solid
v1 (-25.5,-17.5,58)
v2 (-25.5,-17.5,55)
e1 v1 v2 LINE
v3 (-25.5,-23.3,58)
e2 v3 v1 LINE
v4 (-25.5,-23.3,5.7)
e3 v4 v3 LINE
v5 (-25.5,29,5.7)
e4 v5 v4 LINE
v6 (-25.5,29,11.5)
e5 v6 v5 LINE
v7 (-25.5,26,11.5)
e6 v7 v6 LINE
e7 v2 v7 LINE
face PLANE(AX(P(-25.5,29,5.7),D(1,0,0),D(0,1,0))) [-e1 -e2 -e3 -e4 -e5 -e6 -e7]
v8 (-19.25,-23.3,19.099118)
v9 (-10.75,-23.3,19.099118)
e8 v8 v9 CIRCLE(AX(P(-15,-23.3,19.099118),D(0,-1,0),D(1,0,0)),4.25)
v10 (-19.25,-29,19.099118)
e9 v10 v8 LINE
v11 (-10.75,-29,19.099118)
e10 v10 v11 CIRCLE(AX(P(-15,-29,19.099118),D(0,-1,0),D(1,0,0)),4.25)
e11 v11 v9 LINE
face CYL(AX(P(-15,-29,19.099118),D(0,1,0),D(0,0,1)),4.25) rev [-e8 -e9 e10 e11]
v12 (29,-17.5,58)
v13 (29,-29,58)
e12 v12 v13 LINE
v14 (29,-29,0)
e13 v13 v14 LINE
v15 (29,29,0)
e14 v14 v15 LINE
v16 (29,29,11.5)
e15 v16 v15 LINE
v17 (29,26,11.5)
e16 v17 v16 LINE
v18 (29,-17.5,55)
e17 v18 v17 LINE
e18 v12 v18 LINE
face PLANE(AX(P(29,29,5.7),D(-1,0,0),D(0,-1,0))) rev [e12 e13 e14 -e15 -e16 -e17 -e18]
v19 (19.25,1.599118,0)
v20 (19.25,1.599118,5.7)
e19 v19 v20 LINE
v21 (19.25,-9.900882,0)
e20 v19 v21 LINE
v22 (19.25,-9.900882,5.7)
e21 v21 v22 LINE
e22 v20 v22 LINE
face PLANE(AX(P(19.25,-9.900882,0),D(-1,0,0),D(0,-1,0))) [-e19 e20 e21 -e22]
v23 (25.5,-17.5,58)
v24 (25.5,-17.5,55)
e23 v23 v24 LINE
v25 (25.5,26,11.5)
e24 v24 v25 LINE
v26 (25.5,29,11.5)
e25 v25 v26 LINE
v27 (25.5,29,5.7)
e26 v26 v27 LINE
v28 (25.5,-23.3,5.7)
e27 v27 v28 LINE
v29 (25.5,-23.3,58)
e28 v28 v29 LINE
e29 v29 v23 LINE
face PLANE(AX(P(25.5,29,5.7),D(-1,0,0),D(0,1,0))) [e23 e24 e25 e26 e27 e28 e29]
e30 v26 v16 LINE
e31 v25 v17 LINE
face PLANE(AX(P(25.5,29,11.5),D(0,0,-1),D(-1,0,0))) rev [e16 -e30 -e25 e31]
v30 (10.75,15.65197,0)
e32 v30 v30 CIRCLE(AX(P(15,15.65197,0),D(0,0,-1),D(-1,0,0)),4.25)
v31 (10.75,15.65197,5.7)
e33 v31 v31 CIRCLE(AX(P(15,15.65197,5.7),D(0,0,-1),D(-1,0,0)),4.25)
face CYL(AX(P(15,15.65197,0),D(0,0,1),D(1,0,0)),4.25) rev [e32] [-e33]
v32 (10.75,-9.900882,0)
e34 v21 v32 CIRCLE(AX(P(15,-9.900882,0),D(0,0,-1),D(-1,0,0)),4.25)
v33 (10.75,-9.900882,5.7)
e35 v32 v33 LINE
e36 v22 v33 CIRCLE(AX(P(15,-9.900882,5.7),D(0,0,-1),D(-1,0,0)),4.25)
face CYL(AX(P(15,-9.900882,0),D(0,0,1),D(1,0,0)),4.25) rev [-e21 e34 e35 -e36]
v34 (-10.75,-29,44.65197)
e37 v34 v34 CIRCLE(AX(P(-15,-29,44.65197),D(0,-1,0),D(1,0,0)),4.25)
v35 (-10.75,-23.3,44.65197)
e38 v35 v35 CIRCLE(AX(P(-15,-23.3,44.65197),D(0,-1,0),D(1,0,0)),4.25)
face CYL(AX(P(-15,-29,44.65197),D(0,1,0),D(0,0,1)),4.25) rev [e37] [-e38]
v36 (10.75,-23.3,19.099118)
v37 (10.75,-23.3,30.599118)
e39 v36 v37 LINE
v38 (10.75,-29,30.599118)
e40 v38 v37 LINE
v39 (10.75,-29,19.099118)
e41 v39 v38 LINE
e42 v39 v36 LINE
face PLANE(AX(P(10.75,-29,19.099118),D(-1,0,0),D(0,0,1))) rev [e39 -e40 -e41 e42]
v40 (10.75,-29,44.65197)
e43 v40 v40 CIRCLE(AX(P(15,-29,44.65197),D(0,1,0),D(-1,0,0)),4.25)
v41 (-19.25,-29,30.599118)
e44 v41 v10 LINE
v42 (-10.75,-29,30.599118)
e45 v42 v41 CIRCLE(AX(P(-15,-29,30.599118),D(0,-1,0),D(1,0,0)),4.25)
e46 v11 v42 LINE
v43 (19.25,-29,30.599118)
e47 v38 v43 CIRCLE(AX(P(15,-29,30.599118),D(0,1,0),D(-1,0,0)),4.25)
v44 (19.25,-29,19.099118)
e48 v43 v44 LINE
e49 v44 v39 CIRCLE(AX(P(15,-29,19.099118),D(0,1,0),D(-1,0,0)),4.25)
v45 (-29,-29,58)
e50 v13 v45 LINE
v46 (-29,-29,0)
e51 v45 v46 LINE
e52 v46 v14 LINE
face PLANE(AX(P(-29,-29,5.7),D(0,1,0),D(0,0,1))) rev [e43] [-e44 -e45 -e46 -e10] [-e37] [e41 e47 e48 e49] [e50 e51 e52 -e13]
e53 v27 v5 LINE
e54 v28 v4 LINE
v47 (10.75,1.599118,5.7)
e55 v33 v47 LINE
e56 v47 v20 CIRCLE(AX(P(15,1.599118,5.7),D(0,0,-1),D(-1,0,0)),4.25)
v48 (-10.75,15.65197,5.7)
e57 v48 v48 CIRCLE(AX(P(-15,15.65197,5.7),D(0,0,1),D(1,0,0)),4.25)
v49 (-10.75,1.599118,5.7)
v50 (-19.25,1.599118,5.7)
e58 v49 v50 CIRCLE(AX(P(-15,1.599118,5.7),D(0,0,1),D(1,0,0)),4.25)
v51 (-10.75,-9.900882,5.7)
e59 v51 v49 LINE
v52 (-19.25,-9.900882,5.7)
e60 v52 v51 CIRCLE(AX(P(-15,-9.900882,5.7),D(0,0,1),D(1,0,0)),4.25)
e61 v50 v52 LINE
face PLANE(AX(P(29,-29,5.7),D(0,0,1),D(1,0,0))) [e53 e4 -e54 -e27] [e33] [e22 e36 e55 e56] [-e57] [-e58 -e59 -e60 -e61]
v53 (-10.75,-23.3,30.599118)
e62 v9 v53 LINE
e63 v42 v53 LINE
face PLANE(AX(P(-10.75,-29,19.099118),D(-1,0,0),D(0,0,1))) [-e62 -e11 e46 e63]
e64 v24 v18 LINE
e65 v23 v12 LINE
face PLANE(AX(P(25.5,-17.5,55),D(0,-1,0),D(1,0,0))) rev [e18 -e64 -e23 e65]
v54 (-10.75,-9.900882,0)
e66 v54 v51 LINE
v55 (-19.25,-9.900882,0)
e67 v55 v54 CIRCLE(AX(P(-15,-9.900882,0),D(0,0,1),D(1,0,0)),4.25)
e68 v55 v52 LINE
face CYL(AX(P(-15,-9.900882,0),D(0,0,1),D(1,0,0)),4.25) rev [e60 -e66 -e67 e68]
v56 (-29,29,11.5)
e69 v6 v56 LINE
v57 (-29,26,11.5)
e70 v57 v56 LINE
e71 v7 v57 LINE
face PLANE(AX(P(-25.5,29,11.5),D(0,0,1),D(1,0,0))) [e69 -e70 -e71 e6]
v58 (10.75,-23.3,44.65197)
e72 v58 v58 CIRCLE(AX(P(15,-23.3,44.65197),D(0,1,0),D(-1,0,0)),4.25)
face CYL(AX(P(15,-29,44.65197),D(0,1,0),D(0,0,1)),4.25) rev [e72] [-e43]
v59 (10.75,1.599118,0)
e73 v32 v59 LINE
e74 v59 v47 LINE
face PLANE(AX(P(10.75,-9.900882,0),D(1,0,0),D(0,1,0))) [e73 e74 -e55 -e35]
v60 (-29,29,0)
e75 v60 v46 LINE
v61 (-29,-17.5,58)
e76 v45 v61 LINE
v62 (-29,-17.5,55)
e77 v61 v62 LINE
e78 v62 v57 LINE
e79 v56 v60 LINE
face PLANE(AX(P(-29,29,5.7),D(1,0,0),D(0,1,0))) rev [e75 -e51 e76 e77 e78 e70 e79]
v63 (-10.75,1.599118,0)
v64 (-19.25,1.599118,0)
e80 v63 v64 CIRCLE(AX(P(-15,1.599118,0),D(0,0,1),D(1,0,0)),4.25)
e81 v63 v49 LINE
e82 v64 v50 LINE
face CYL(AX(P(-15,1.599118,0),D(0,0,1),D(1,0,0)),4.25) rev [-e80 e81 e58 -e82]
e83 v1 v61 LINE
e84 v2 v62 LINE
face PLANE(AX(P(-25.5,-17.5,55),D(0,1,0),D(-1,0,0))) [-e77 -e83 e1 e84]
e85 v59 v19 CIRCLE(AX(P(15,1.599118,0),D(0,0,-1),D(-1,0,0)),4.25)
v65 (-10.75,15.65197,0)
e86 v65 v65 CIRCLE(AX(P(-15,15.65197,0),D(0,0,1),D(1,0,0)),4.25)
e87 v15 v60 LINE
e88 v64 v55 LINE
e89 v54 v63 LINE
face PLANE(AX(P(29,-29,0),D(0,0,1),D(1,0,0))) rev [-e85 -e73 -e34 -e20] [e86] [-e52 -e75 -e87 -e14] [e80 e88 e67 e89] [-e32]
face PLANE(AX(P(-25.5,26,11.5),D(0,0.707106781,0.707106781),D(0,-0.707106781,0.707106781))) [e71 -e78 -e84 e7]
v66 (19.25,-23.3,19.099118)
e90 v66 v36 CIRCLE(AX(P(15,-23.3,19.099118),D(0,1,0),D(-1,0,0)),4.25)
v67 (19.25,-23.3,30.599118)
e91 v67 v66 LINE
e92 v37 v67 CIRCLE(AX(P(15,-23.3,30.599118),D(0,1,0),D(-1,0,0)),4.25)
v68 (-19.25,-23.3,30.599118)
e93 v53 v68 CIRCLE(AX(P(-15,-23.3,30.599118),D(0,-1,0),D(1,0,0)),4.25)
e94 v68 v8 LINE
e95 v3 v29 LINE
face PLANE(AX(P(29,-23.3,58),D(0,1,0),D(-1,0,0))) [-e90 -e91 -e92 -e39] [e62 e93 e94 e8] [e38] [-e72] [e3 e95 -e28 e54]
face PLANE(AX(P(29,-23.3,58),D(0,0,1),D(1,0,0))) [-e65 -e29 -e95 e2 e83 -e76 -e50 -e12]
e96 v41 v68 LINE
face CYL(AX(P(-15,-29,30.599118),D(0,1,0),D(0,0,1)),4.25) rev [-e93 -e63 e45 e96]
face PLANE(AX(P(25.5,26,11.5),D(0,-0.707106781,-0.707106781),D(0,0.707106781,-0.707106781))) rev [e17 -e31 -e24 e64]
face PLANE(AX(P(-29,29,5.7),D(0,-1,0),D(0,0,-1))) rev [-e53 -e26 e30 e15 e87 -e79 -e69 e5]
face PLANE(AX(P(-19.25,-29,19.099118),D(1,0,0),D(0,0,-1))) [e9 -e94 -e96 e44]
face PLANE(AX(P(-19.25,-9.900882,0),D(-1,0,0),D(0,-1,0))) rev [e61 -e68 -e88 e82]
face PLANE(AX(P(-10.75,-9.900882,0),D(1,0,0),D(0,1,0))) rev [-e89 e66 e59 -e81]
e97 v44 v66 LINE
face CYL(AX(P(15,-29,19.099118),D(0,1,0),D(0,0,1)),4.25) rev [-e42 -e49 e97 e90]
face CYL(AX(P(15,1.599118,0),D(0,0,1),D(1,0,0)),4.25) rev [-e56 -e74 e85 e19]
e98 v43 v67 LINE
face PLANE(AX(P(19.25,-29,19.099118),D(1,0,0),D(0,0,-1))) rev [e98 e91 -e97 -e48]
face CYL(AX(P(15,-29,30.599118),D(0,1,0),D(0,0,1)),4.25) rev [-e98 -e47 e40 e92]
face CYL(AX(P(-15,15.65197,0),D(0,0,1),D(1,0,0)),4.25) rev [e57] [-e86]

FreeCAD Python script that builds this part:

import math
import FreeCAD as App
import Part
import Sketcher
from FreeCAD import Vector

doc = App.newDocument("Part")
params = doc.addObject("Spreadsheet::Sheet", "Params")
for row, (alias, value) in enumerate([
    ("sketch1_width", "58 mm"),
    ("pad1_length", "5.7 mm"),
    ("sketch2_width", "58 mm"),
    ("sketch2_height", "5.7 mm"),
    ("pad2_length", "58 mm"),
    ("sketch3_width", "3 mm"),
    ("sketch3_width2", "52.3 mm"),
    ("sketch3_width3", "5.8 mm"),
    ("pad3_length", "3.5 mm"),
    ("sketch4_diameter", "8.5 mm"),
    ("sketch4_height", "11.5 mm"),
    ("sketch5_width", "3 mm"),
    ("sketch5_width2", "5.8 mm"),
    ("sketch5_width3", "52.3 mm"),
    ("pad4_length", "3.5 mm"),
    ("sketch6_diameter", "8.5 mm"),
    ("sketch6_height", "11.5 mm"),
    ("sketch7_width", "3 mm"),
    ("sketch7_width2", "5.8 mm"),
    ("sketch7_width3", "52.3 mm"),
    ("pad5_length", "3.5 mm"),
], start=1):
    params.set(f"A{row}", alias)
    params.set(f"B{row}", "=" + value)
    params.setAlias(f"B{row}", alias)

body = doc.addObject("PartDesign::Body", "Body")

sketch1 = doc.addObject("Sketcher::SketchObject", "Sketch")
body.addObject(sketch1)
sketch1.AttachmentSupport = (doc.XY_Plane, [""])
sketch1.MapMode = "FlatFace"
sketch1.addGeometry([
    Part.LineSegment(Vector(-29, 29, 0), Vector(-29, -29, 0)),
    Part.LineSegment(Vector(-29, -29, 0), Vector(29, -29, 0)),
    Part.LineSegment(Vector(29, -29, 0), Vector(29, 29, 0)),
    Part.LineSegment(Vector(29, 29, 0), Vector(-29, 29, 0)),
], False)
sketch1.addConstraint([
    Sketcher.Constraint("Coincident", 0, 2, 1, 1),
    Sketcher.Constraint("Coincident", 1, 2, 2, 1),
    Sketcher.Constraint("Coincident", 2, 2, 3, 1),
    Sketcher.Constraint("Coincident", 3, 2, 0, 1),
    Sketcher.Constraint("Vertical", 0),
    Sketcher.Constraint("Horizontal", 1),
    Sketcher.Constraint("Vertical", 2),
    Sketcher.Constraint("Horizontal", 3),
    Sketcher.Constraint("Symmetric", 0, 2, 2, 2, -1, 1),
    Sketcher.Constraint("Equal", 3, 0),
    Sketcher.Constraint("DistanceX", 1, 1, 1, 2, 58.0),
])
sketch1.setExpression("Constraints[10]", "Params.sketch1_width")
pad1 = doc.addObject("PartDesign::Pad", "Pad")
body.addObject(pad1)
pad1.Profile = sketch1
pad1.setExpression("Length", "Params.pad1_length")

sketch2 = doc.addObject("Sketcher::SketchObject", "Sketch001")
body.addObject(sketch2)
sketch2.AttachmentSupport = (doc.XY_Plane, [""])
sketch2.MapMode = "FlatFace"
sketch2.addGeometry([
    Part.LineSegment(Vector(29, -23.3, 0), Vector(29, -29, 0)),
    Part.LineSegment(Vector(29, -29, 0), Vector(-29, -29, 0)),
    Part.LineSegment(Vector(-29, -29, 0), Vector(-29, -23.3, 0)),
    Part.LineSegment(Vector(-29, -23.3, 0), Vector(29, -23.3, 0)),
], False)
sketch2.addConstraint([
    Sketcher.Constraint("Coincident", 0, 2, 1, 1),
    Sketcher.Constraint("Coincident", 1, 2, 2, 1),
    Sketcher.Constraint("Coincident", 2, 2, 3, 1),
    Sketcher.Constraint("Coincident", 3, 2, 0, 1),
    Sketcher.Constraint("Vertical", 0),
    Sketcher.Constraint("Horizontal", 1),
    Sketcher.Constraint("Vertical", 2),
    Sketcher.Constraint("Horizontal", 3),
    Sketcher.Constraint("DistanceX", 1, 2, 1, 1, 58.0),
    Sketcher.Constraint("DistanceY", 0, 2, 0, 1, 5.7),
    Sketcher.Constraint("DistanceX", -1, 1, 0, 2, 29.0),
    Sketcher.Constraint("DistanceY", 0, 2, -1, 1, 29.0),
])
sketch2.setExpression("Constraints[8]", "Params.sketch2_width")
sketch2.setExpression("Constraints[9]", "Params.sketch2_height")
pad2 = doc.addObject("PartDesign::Pad", "Pad001")
body.addObject(pad2)
pad2.Profile = sketch2
pad2.setExpression("Length", "Params.pad2_length")

sketch3 = doc.addObject("Sketcher::SketchObject", "Sketch002")
body.addObject(sketch3)
sketch3.AttachmentSupport = (doc.YZ_Plane, [""])
sketch3.MapMode = "FlatFace"
sketch3.AttachmentOffset = App.Placement(Vector(0, 0, -29), App.Rotation())
sketch3.addGeometry([
    Part.LineSegment(Vector(29, 11.5, 0), Vector(29, 5.7, 0)),
    Part.LineSegment(Vector(29, 5.7, 0), Vector(-23.3, 5.7, 0)),
    Part.LineSegment(Vector(-23.3, 5.7, 0), Vector(-23.3, 58, 0)),
    Part.LineSegment(Vector(-23.3, 58, 0), Vector(-17.5, 58, 0)),
    Part.LineSegment(Vector(-17.5, 58, 0), Vector(-17.5, 55, 0)),
    Part.LineSegment(Vector(-17.5, 55, 0), Vector(26, 11.5, 0)),
    Part.LineSegment(Vector(26, 11.5, 0), Vector(29, 11.5, 0)),
], False)
sketch3.addConstraint([
    Sketcher.Constraint("Coincident", 0, 2, 1, 1),
    Sketcher.Constraint("Coincident", 1, 2, 2, 1),
    Sketcher.Constraint("Coincident", 2, 2, 3, 1),
    Sketcher.Constraint("Coincident", 3, 2, 4, 1),
    Sketcher.Constraint("Coincident", 4, 2, 5, 1),
    Sketcher.Constraint("Coincident", 5, 2, 6, 1),
    Sketcher.Constraint("Coincident", 6, 2, 0, 1),
    Sketcher.Constraint("Vertical", 0),
    Sketcher.Constraint("Horizontal", 1),
    Sketcher.Constraint("Vertical", 2),
    Sketcher.Constraint("Horizontal", 3),
    Sketcher.Constraint("Vertical", 4),
    Sketcher.Constraint("Horizontal", 6),
    Sketcher.Constraint("Equal", 3, 0),
    Sketcher.Constraint("Equal", 1, 2),
    Sketcher.Constraint("Equal", 6, 4),
    Sketcher.Constraint("DistanceX", 6, 1, 6, 2, 3.0),
    Sketcher.Constraint("DistanceX", 1, 2, 1, 1, 52.3),
    Sketcher.Constraint("DistanceX", 3, 1, 3, 2, 5.8),
    Sketcher.Constraint("DistanceX", -1, 1, 0, 2, 29.0),
    Sketcher.Constraint("DistanceY", -1, 1, 2, 2, 58.0),
])
sketch3.setExpression("Constraints[16]", "Params.sketch3_width")
sketch3.setExpression("Constraints[17]", "Params.sketch3_width2")
sketch3.setExpression("Constraints[18]", "Params.sketch3_width3")
pad3 = doc.addObject("PartDesign::Pad", "Pad002")
body.addObject(pad3)
pad3.Profile = sketch3
pad3.setExpression("Length", "Params.pad3_length")

sketch4 = doc.addObject("Sketcher::SketchObject", "Sketch003")
body.addObject(sketch4)
sketch4.AttachmentSupport = (doc.XY_Plane, [""])
sketch4.MapMode = "FlatFace"
sketch4.AttachmentOffset = App.Placement(Vector(0, 0, 5.7), App.Rotation())
sketch4.addGeometry([
    Part.Circle(Vector(-15, 15.65197, 0), Vector(0, 0, 1), 4.25),
    Part.LineSegment(Vector(-19.25, 1.599118, 0), Vector(-19.25, -9.900882, 0)),
    Part.ArcOfCircle(Part.Circle(Vector(-15, -9.900882, 0), Vector(0, 0, 1), 4.25), math.radians(180), math.radians(360)),
    Part.LineSegment(Vector(-10.75, -9.900882, 0), Vector(-10.75, 1.599118, 0)),
    Part.ArcOfCircle(Part.Circle(Vector(-15, 1.599118, 0), Vector(0, 0, 1), 4.25), math.radians(0), math.radians(180)),
], False)
sketch4.addConstraint([
    Sketcher.Constraint("Tangent", 1, 2, 2, 1),
    Sketcher.Constraint("Tangent", 2, 2, 3, 1),
    Sketcher.Constraint("Tangent", 3, 2, 4, 1),
    Sketcher.Constraint("Tangent", 4, 2, 1, 1),
    Sketcher.Constraint("Vertical", 1),
    Sketcher.Constraint("Vertical", 3),
    Sketcher.Constraint("Equal", 0, 2),
    Sketcher.Constraint("Vertical", 0, 3, 2, 3),
    Sketcher.Constraint("Diameter", 0, 8.5),
    Sketcher.Constraint("DistanceY", 1, 2, 1, 1, 11.5),
    Sketcher.Constraint("DistanceX", 0, 3, -1, 1, 15.0),
    Sketcher.Constraint("DistanceY", -1, 1, 0, 3, 15.65197),
    Sketcher.Constraint("DistanceY", 2, 3, -1, 1, 9.900882),
])
sketch4.setExpression("Constraints[8]", "Params.sketch4_diameter")
sketch4.setExpression("Constraints[9]", "Params.sketch4_height")
pocket1 = doc.addObject("PartDesign::Pocket", "Pocket")
body.addObject(pocket1)
pocket1.Profile = sketch4
pocket1.Type = "ThroughAll"
doc.recompute()

mirrored = doc.addObject("PartDesign::Mirrored", "Mirrored")
body.addObject(mirrored)
mirrored.Originals = [pad3, pocket1]
mirrored.MirrorPlane = (doc.YZ_Plane, [""])
body.Tip = mirrored
doc.recompute()

datumplane = doc.addObject("PartDesign::Plane", "DatumPlane")
body.addObject(datumplane)
datumplane.Placement = App.Placement(Vector(0, -14.5, 14.5), App.Rotation(Vector(0, 0.707106781, 0.707106781), Vector(-1, 0, 0), Vector(0, -0.707106781, 0.707106781), "ZXY"))
mirrored2 = doc.addObject("PartDesign::Mirrored", "Mirrored001")
body.addObject(mirrored2)
mirrored2.Originals = [pocket1]
mirrored2.MirrorPlane = (datumplane, [""])
body.Tip = mirrored2

sketch5 = doc.addObject("Sketcher::SketchObject", "Sketch004")
body.addObject(sketch5)
sketch5.AttachmentSupport = (doc.YZ_Plane, [""])
sketch5.MapMode = "FlatFace"
sketch5.AttachmentOffset = App.Placement(Vector(0, 0, 29), App.Rotation())
sketch5.addGeometry([
    Part.LineSegment(Vector(-17.5, 58, 0), Vector(-23.3, 58, 0)),
    Part.LineSegment(Vector(-23.3, 58, 0), Vector(-23.3, 5.7, 0)),
    Part.LineSegment(Vector(-23.3, 5.7, 0), Vector(29, 5.7, 0)),
    Part.LineSegment(Vector(29, 5.7, 0), Vector(29, 11.5, 0)),
    Part.LineSegment(Vector(29, 11.5, 0), Vector(26, 11.5, 0)),
    Part.LineSegment(Vector(26, 11.5, 0), Vector(-17.5, 55, 0)),
    Part.LineSegment(Vector(-17.5, 55, 0), Vector(-17.5, 58, 0)),
], False)
sketch5.addConstraint([
    Sketcher.Constraint("Coincident", 0, 2, 1, 1),
    Sketcher.Constraint("Coincident", 1, 2, 2, 1),
    Sketcher.Constraint("Coincident", 2, 2, 3, 1),
    Sketcher.Constraint("Coincident", 3, 2, 4, 1),
    Sketcher.Constraint("Coincident", 4, 2, 5, 1),
    Sketcher.Constraint("Coincident", 5, 2, 6, 1),
    Sketcher.Constraint("Coincident", 6, 2, 0, 1),
    Sketcher.Constraint("Horizontal", 0),
    Sketcher.Constraint("Vertical", 1),
    Sketcher.Constraint("Horizontal", 2),
    Sketcher.Constraint("Vertical", 3),
    Sketcher.Constraint("Horizontal", 4),
    Sketcher.Constraint("Vertical", 6),
    Sketcher.Constraint("Equal", 2, 1),
    Sketcher.Constraint("Equal", 0, 3),
    Sketcher.Constraint("Equal", 4, 6),
    Sketcher.Constraint("DistanceX", 4, 2, 4, 1, 3.0),
    Sketcher.Constraint("DistanceX", 0, 2, 0, 1, 5.8),
    Sketcher.Constraint("DistanceX", 2, 1, 2, 2, 52.3),
    Sketcher.Constraint("DistanceY", -1, 1, 0, 2, 58.0),
    Sketcher.Constraint("DistanceX", -1, 1, 2, 2, 29.0),
])
sketch5.setExpression("Constraints[16]", "Params.sketch5_width")
sketch5.setExpression("Constraints[17]", "Params.sketch5_width2")
sketch5.setExpression("Constraints[18]", "Params.sketch5_width3")
pad4 = doc.addObject("PartDesign::Pad", "Pad003")
body.addObject(pad4)
pad4.Profile = sketch5
pad4.setExpression("Length", "Params.pad4_length")
pad4.Reversed = True

sketch6 = doc.addObject("Sketcher::SketchObject", "Sketch005")
body.addObject(sketch6)
sketch6.AttachmentSupport = (doc.XZ_Plane, [""])
sketch6.MapMode = "FlatFace"
sketch6.AttachmentOffset = App.Placement(Vector(0, 0, 23.3), App.Rotation())
sketch6.addGeometry([
    Part.Circle(Vector(15, 44.65197, 0), Vector(0, 0, 1), 4.25),
    Part.LineSegment(Vector(19.25, 30.599118, 0), Vector(19.25, 19.099118, 0)),
    Part.ArcOfCircle(Part.Circle(Vector(15, 19.099118, 0), Vector(0, 0, 1), 4.25), math.radians(180), math.radians(360)),
    Part.LineSegment(Vector(10.75, 19.099118, 0), Vector(10.75, 30.599118, 0)),
    Part.ArcOfCircle(Part.Circle(Vector(15, 30.599118, 0), Vector(0, 0, 1), 4.25), math.radians(0), math.radians(180)),
], False)
sketch6.addConstraint([
    Sketcher.Constraint("Tangent", 1, 2, 2, 2),
    Sketcher.Constraint("Tangent", 2, 1, 3, 1),
    Sketcher.Constraint("Tangent", 3, 2, 4, 2),
    Sketcher.Constraint("Tangent", 4, 1, 1, 1),
    Sketcher.Constraint("Vertical", 1),
    Sketcher.Constraint("Vertical", 3),
    Sketcher.Constraint("Equal", 0, 2),
    Sketcher.Constraint("Vertical", 0, 3, 2, 3),
    Sketcher.Constraint("Diameter", 0, 8.5),
    Sketcher.Constraint("DistanceY", 1, 2, 1, 1, 11.5),
    Sketcher.Constraint("DistanceX", -1, 1, 0, 3, 15.0),
    Sketcher.Constraint("DistanceY", -1, 1, 0, 3, 44.65197),
    Sketcher.Constraint("DistanceY", -1, 1, 2, 3, 19.099118),
])
sketch6.setExpression("Constraints[8]", "Params.sketch6_diameter")
sketch6.setExpression("Constraints[9]", "Params.sketch6_height")
pocket2 = doc.addObject("PartDesign::Pocket", "Pocket001")
body.addObject(pocket2)
pocket2.Profile = sketch6
pocket2.Type = "ThroughAll"
pocket2.Reversed = True

sketch7 = doc.addObject("Sketcher::SketchObject", "Sketch006")
body.addObject(sketch7)
sketch7.AttachmentSupport = (doc.YZ_Plane, [""])
sketch7.MapMode = "FlatFace"
sketch7.AttachmentOffset = App.Placement(Vector(0, 0, -29), App.Rotation())
sketch7.addGeometry([
    Part.LineSegment(Vector(-23.3, 58, 0), Vector(-17.5, 58, 0)),
    Part.LineSegment(Vector(-17.5, 58, 0), Vector(-17.5, 55, 0)),
    Part.LineSegment(Vector(-17.5, 55, 0), Vector(26, 11.5, 0)),
    Part.LineSegment(Vector(26, 11.5, 0), Vector(29, 11.5, 0)),
    Part.LineSegment(Vector(29, 11.5, 0), Vector(29, 5.7, 0)),
    Part.LineSegment(Vector(29, 5.7, 0), Vector(-23.3, 5.7, 0)),
    Part.LineSegment(Vector(-23.3, 5.7, 0), Vector(-23.3, 58, 0)),
], False)
sketch7.addConstraint([
    Sketcher.Constraint("Coincident", 0, 2, 1, 1),
    Sketcher.Constraint("Coincident", 1, 2, 2, 1),
    Sketcher.Constraint("Coincident", 2, 2, 3, 1),
    Sketcher.Constraint("Coincident", 3, 2, 4, 1),
    Sketcher.Constraint("Coincident", 4, 2, 5, 1),
    Sketcher.Constraint("Coincident", 5, 2, 6, 1),
    Sketcher.Constraint("Coincident", 6, 2, 0, 1),
    Sketcher.Constraint("Horizontal", 0),
    Sketcher.Constraint("Vertical", 1),
    Sketcher.Constraint("Horizontal", 3),
    Sketcher.Constraint("Vertical", 4),
    Sketcher.Constraint("Horizontal", 5),
    Sketcher.Constraint("Vertical", 6),
    Sketcher.Constraint("Equal", 3, 1),
    Sketcher.Constraint("Equal", 0, 4),
    Sketcher.Constraint("Equal", 5, 6),
    Sketcher.Constraint("DistanceX", 3, 1, 3, 2, 3.0),
    Sketcher.Constraint("DistanceX", 0, 1, 0, 2, 5.8),
    Sketcher.Constraint("DistanceX", 5, 2, 5, 1, 52.3),
    Sketcher.Constraint("DistanceY", -1, 1, 0, 2, 58.0),
    Sketcher.Constraint("DistanceX", -1, 1, 2, 2, 26.0),
])
sketch7.setExpression("Constraints[16]", "Params.sketch7_width")
sketch7.setExpression("Constraints[17]", "Params.sketch7_width2")
sketch7.setExpression("Constraints[18]", "Params.sketch7_width3")
pad5 = doc.addObject("PartDesign::Pad", "Pad004")
body.addObject(pad5)
pad5.Profile = sketch7
pad5.setExpression("Length", "Params.pad5_length")

doc.recompute()
